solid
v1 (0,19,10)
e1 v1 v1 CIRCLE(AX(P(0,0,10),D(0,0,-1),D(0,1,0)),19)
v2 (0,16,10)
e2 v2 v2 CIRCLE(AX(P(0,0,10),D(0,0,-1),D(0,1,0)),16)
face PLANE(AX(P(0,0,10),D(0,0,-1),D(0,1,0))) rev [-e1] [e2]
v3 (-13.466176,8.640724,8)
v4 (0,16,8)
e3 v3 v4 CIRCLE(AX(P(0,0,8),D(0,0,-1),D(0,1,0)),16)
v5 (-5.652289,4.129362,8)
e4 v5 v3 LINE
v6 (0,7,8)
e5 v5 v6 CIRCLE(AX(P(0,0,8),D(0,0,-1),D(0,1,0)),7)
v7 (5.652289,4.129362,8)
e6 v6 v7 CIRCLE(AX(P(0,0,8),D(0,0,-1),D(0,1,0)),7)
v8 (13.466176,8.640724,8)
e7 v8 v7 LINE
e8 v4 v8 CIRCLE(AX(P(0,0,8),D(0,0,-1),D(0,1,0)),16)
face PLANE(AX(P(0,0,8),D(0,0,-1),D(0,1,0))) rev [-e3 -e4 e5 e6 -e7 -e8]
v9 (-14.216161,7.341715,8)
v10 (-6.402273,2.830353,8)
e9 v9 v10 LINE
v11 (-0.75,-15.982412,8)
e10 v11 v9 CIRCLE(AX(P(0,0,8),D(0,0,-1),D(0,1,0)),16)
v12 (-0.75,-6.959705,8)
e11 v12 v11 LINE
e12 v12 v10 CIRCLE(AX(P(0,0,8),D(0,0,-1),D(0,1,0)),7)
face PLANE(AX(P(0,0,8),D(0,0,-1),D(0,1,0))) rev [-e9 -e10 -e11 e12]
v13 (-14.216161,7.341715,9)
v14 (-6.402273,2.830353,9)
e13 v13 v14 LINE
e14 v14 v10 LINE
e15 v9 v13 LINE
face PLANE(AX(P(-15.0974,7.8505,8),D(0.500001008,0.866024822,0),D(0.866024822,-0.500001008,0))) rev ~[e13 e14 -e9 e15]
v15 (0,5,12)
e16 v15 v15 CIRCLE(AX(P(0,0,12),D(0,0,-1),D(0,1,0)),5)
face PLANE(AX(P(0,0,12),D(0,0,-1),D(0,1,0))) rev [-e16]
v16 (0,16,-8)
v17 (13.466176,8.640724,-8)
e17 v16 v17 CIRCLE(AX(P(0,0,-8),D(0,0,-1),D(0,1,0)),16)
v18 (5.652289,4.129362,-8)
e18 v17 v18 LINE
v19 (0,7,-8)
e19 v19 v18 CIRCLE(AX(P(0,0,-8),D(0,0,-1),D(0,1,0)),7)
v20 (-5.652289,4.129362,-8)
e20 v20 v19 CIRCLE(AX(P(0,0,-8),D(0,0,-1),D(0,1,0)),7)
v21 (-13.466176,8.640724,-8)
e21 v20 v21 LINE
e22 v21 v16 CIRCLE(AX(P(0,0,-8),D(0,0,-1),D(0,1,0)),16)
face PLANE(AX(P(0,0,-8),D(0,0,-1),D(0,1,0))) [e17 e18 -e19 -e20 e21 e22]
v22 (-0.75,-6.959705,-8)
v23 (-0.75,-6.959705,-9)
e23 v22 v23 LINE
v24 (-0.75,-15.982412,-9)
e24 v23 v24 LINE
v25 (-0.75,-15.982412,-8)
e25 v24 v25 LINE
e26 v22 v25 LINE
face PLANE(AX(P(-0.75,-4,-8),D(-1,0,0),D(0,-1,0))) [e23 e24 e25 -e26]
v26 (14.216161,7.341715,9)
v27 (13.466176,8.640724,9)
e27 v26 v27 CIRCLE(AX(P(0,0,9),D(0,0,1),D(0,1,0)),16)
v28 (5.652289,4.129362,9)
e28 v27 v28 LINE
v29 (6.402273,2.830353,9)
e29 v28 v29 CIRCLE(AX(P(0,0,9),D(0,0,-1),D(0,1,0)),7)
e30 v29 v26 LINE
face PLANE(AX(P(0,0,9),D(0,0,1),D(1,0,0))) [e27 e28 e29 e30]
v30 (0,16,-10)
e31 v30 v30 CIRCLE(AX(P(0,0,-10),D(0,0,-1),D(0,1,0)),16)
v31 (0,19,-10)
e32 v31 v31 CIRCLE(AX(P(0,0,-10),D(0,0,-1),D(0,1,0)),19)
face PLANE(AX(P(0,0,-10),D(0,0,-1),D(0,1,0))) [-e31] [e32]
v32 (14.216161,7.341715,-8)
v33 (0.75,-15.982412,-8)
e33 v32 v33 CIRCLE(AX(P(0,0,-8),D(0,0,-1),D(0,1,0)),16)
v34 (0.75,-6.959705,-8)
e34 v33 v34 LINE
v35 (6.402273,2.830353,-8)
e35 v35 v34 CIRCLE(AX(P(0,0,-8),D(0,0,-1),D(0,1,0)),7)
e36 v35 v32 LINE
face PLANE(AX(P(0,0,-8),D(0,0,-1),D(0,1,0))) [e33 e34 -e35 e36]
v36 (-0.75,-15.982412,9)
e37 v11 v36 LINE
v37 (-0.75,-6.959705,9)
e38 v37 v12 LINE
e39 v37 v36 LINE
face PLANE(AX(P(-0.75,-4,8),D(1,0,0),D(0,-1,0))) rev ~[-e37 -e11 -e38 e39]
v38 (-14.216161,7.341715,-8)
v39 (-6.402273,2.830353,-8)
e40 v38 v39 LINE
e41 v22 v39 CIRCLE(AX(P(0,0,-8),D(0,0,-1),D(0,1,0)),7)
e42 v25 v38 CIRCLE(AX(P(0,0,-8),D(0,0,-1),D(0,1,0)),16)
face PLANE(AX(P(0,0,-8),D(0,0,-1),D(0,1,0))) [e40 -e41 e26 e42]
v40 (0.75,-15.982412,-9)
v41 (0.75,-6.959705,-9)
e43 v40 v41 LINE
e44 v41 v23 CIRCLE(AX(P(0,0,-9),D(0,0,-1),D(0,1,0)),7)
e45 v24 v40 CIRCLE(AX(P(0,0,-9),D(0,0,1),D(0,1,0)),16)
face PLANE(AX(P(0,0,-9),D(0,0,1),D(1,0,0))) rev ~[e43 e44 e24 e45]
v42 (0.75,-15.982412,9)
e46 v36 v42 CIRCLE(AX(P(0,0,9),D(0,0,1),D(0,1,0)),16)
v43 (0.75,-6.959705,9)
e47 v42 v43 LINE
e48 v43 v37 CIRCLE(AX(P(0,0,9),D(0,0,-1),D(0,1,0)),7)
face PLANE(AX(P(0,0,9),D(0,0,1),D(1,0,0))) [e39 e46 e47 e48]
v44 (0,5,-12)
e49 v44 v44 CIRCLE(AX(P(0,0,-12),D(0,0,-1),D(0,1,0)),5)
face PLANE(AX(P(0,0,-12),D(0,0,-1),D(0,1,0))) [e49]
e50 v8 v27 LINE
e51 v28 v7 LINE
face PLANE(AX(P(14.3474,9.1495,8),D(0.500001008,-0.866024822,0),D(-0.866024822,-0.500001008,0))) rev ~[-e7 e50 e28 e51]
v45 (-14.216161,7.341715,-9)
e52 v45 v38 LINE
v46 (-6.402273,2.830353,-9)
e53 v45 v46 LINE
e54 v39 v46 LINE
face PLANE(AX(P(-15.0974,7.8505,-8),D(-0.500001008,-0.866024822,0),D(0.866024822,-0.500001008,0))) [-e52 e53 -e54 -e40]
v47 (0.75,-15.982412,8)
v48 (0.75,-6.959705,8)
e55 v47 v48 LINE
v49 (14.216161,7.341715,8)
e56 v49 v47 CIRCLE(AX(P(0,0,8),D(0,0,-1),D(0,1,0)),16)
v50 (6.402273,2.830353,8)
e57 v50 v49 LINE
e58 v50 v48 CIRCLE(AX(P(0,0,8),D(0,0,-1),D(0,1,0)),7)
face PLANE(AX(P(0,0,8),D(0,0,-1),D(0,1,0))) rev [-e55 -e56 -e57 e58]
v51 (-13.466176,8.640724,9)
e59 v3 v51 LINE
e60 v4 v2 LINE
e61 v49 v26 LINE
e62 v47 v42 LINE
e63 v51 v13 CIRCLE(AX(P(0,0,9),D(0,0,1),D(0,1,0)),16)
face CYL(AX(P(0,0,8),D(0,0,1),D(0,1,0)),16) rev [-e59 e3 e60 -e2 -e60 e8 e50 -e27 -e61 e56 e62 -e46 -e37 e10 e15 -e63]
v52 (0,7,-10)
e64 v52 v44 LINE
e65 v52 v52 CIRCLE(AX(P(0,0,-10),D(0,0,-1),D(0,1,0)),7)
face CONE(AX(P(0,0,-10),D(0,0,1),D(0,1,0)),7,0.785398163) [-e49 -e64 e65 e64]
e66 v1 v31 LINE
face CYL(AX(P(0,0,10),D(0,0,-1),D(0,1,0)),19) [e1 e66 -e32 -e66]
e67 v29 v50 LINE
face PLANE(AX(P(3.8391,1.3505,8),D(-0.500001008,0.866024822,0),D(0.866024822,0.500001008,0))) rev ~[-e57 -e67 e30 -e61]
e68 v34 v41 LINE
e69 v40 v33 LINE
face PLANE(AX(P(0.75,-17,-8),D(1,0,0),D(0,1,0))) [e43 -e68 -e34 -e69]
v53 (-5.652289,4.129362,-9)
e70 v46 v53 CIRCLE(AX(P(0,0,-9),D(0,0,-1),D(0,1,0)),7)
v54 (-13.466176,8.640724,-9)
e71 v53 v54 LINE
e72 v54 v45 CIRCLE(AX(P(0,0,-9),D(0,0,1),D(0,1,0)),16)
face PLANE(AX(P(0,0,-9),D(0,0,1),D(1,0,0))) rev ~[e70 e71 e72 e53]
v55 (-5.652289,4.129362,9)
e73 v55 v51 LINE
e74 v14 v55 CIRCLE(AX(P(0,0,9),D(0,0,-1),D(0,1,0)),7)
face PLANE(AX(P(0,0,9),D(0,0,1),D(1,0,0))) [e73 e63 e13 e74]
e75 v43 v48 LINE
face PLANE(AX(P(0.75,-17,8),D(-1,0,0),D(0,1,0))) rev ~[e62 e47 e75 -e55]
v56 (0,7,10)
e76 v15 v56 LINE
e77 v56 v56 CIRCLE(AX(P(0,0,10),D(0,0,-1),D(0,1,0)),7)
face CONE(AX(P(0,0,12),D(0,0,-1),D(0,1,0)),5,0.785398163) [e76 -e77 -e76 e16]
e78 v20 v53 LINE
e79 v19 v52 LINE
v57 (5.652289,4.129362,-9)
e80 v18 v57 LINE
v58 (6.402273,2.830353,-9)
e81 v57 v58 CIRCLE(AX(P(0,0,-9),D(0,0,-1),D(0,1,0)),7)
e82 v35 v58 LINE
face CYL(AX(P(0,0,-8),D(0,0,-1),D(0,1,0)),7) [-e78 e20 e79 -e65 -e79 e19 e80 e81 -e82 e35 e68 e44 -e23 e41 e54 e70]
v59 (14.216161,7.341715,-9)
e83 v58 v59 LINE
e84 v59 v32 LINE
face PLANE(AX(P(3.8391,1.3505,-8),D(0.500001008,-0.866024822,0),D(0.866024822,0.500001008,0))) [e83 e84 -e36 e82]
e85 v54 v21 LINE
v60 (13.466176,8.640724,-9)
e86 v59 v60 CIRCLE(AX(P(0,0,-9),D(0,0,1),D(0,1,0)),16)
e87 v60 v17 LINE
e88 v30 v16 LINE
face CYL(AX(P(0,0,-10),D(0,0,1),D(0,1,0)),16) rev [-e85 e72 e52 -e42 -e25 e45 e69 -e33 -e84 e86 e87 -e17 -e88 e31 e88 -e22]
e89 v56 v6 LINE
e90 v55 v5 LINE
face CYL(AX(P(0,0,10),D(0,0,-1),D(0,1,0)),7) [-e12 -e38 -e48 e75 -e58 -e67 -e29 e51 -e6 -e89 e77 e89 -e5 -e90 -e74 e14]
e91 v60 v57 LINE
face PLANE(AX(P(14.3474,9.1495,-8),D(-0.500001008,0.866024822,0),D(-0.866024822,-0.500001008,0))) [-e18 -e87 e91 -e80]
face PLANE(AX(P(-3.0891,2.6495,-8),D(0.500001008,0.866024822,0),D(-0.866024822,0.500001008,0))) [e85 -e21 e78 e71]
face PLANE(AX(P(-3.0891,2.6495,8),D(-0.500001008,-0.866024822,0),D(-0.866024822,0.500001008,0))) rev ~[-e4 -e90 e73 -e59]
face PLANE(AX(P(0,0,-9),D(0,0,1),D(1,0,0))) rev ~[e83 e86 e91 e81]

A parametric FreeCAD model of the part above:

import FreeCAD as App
import Part
import Sketcher

V = App.Vector
Q = App.Units.Quantity

doc = App.newDocument("Part")
body = doc.addObject("PartDesign::Body", "Body")

# Sketch on YZ plane
sketch1 = body.newObject("Sketcher::SketchObject", "Sketch")
sketch1.AttachmentSupport = (doc.getObject("YZ_Plane"), [""])
sketch1.MapMode = "FlatFace"
sketch1.addGeometry([
    Part.LineSegment(V(0, 12, 0), V(0, -12, 0)),  # 0
    Part.LineSegment(V(0, -12, 0), V(5, -12, 0)),  # 1
    Part.LineSegment(V(5, -12, 0), V(7, -10, 0)),  # 2
    Part.LineSegment(V(7, -10, 0), V(7, -8, 0)),  # 3
    Part.LineSegment(V(7, -8, 0), V(16, -8, 0)),  # 4
    Part.LineSegment(V(16, -8, 0), V(16, -10, 0)),  # 5
    Part.LineSegment(V(16, -10, 0), V(19, -10, 0)),  # 6
    Part.LineSegment(V(19, -10, 0), V(19, 10, 0)),  # 7
    Part.LineSegment(V(19, 10, 0), V(16, 10, 0)),  # 8
    Part.LineSegment(V(16, 10, 0), V(16, 8, 0)),  # 9
    Part.LineSegment(V(16, 8, 0), V(7, 8, 0)),  # 10
    Part.LineSegment(V(7, 8, 0), V(7, 10, 0)),  # 11
    Part.LineSegment(V(7, 10, 0), V(5, 12, 0)),  # 12
    Part.LineSegment(V(5, 12, 0), V(0, 12, 0)),  # 13
], False)
sketch1.addConstraint([
    Sketcher.Constraint("Coincident", 0, 2, 1, 1),
    Sketcher.Constraint("Coincident", 1, 2, 2, 1),
    Sketcher.Constraint("Coincident", 2, 2, 3, 1),
    Sketcher.Constraint("Coincident", 3, 2, 4, 1),
    Sketcher.Constraint("Coincident", 4, 2, 5, 1),
    Sketcher.Constraint("Coincident", 5, 2, 6, 1),
    Sketcher.Constraint("Coincident", 6, 2, 7, 1),
    Sketcher.Constraint("Coincident", 7, 2, 8, 1),
    Sketcher.Constraint("Coincident", 8, 2, 9, 1),
    Sketcher.Constraint("Coincident", 9, 2, 10, 1),
    Sketcher.Constraint("Coincident", 10, 2, 11, 1),
    Sketcher.Constraint("Coincident", 11, 2, 12, 1),
    Sketcher.Constraint("Coincident", 12, 2, 13, 1),
    Sketcher.Constraint("Coincident", 13, 2, 0, 1),
    Sketcher.Constraint("Vertical", 0),
    Sketcher.Constraint("Horizontal", 1),
    Sketcher.Constraint("Vertical", 3),
    Sketcher.Constraint("Horizontal", 4),
    Sketcher.Constraint("Vertical", 5),
    Sketcher.Constraint("Horizontal", 6),
    Sketcher.Constraint("Vertical", 7),
    Sketcher.Constraint("Horizontal", 8),
    Sketcher.Constraint("Vertical", 9),
    Sketcher.Constraint("Horizontal", 10),
    Sketcher.Constraint("Vertical", 11),
    Sketcher.Constraint("Horizontal", 13),
    Sketcher.Constraint("Symmetric", 0, 2, 13, 2, -1, 1),
    Sketcher.Constraint("Symmetric", 5, 2, 8, 2, -1),
    Sketcher.Constraint("Symmetric", 3, 2, 10, 2, -1),
    Sketcher.Constraint("Perpendicular", 2, 12),
    Sketcher.Constraint("Horizontal", 2, 2, 5, 2),
    Sketcher.Constraint("Horizontal", 8, 2, 11, 2),
    Sketcher.Constraint("Vertical", 1, 2, 12, 2),
    Sketcher.Constraint("DistanceX", 1, 1, 1, 2, Q("5 mm")),
    Sketcher.Constraint("DistanceX", 4, 1, 4, 2, Q("9 mm")),
    Sketcher.Constraint("DistanceX", 6, 1, 6, 2, Q("3 mm")),
    Sketcher.Constraint("DistanceY", 0, 2, 0, 1, Q("24 mm")),
    Sketcher.Constraint("DistanceY", 3, 1, 3, 2, Q("2 mm")),
    Sketcher.Constraint("DistanceY", 7, 1, 7, 2, Q("20 mm")),
])
revolution = body.newObject("PartDesign::Revolution", "Revolution")
revolution.Profile = sketch1
revolution.ReferenceAxis = (sketch1, ["V_Axis"])
revolution.Angle = 360

# Sketch on XY plane
sketch2 = body.newObject("Sketcher::SketchObject", "Sketch001")
sketch2.AttachmentSupport = (doc.getObject("XY_Plane"), [""])
sketch2.MapMode = "FlatFace"
sketch2.AttachmentOffset = App.Placement(V(0, 0, 8), App.Rotation())
sketch2.addGeometry([
    Part.LineSegment(V(-0.75, -4, 0), V(-0.75, -17, 0)),
    Part.LineSegment(V(-0.75, -17, 0), V(0.75, -17, 0)),
    Part.LineSegment(V(0.75, -17, 0), V(0.75, -4, 0)),
    Part.LineSegment(V(0.75, -4, 0), V(-0.75, -4, 0)),
], False)
sketch2.addConstraint([
    Sketcher.Constraint("Coincident", 0, 2, 1, 1),
    Sketcher.Constraint("Coincident", 1, 2, 2, 1),
    Sketcher.Constraint("Coincident", 2, 2, 3, 1),
    Sketcher.Constraint("Coincident", 3, 2, 0, 1),
    Sketcher.Constraint("Vertical", 0),
    Sketcher.Constraint("Horizontal", 1),
    Sketcher.Constraint("Vertical", 2),
    Sketcher.Constraint("Horizontal", 3),
    Sketcher.Constraint("DistanceY", 0, 2, 0, 1, Q("13 mm")),
    Sketcher.Constraint("DistanceX", 1, 1, 1, 2, Q("1.5 mm")),
    Sketcher.Constraint("DistanceY", 0, 2, -1, 1, Q("17 mm")),
    Sketcher.Constraint("DistanceX", 0, 2, -1, 1, Q("0.75 mm")),
])
pad1 = body.newObject("PartDesign::Pad", "Pad")
pad1.Profile = sketch2
pad1.Length = 1

# Sketch on XY plane
sketch3 = body.newObject("Sketcher::SketchObject", "Sketch002")
sketch3.AttachmentSupport = (doc.getObject("XY_Plane"), [""])
sketch3.MapMode = "FlatFace"
sketch3.AttachmentOffset = App.Placement(V(0, 0, 8), App.Rotation())
sketch3.addGeometry([
    Part.LineSegment(V(14.3474, 9.1495, 0), V(3.0891, 2.6495, 0)),
    Part.LineSegment(V(3.0891, 2.6495, 0), V(3.8391, 1.3505, 0)),
    Part.LineSegment(V(3.8391, 1.3505, 0), V(15.0974, 7.8505, 0)),
    Part.LineSegment(V(15.0974, 7.8505, 0), V(14.3474, 9.1495, 0)),
], False)
sketch3.addConstraint([
    Sketcher.Constraint("Coincident", 0, 2, 1, 1),
    Sketcher.Constraint("Coincident", 1, 2, 2, 1),
    Sketcher.Constraint("Coincident", 2, 2, 3, 1),
    Sketcher.Constraint("Coincident", 3, 2, 0, 1),
    Sketcher.Constraint("Perpendicular", 0, 1),
    Sketcher.Constraint("Perpendicular", 1, 2),
    Sketcher.Constraint("Perpendicular", 2, 3),
    Sketcher.Constraint("Angle", 0, Q("-150 deg")),
    Sketcher.Constraint("Distance", 0, Q("13 mm")),
    Sketcher.Constraint("Distance", 1, Q("1.5 mm")),
    Sketcher.Constraint("DistanceX", -1, 1, 0, 2, Q("3.089 mm")),
    Sketcher.Constraint("DistanceY", -1, 1, 0, 2, Q("2.6495 mm")),
])
pad2 = body.newObject("PartDesign::Pad", "Pad001")
pad2.Profile = sketch3
pad2.Length = 1

# Sketch on XY plane
sketch4 = body.newObject("Sketcher::SketchObject", "Sketch003")
sketch4.AttachmentSupport = (doc.getObject("XY_Plane"), [""])
sketch4.MapMode = "FlatFace"
sketch4.AttachmentOffset = App.Placement(V(0, 0, 8), App.Rotation())
sketch4.addGeometry([
    Part.LineSegment(V(-14.3474, 9.1495, 0), V(-15.0974, 7.8505, 0)),
    Part.LineSegment(V(-15.0974, 7.8505, 0), V(-3.8391, 1.3505, 0)),
    Part.LineSegment(V(-3.8391, 1.3505, 0), V(-3.0891, 2.6495, 0)),
    Part.LineSegment(V(-3.0891, 2.6495, 0), V(-14.3474, 9.1495, 0)),
], False)
sketch4.addConstraint([
    Sketcher.Constraint("Coincident", 0, 2, 1, 1),
    Sketcher.Constraint("Coincident", 1, 2, 2, 1),
    Sketcher.Constraint("Coincident", 2, 2, 3, 1),
    Sketcher.Constraint("Coincident", 3, 2, 0, 1),
    Sketcher.Constraint("Perpendicular", 0, 1),
    Sketcher.Constraint("Perpendicular", 1, 2),
    Sketcher.Constraint("Perpendicular", 2, 3),
    Sketcher.Constraint("Angle", 0, Q("-120.0007 deg")),
    Sketcher.Constraint("Distance", 1, Q("13 mm")),
    Sketcher.Constraint("Distance", 0, Q("1.5 mm")),
    Sketcher.Constraint("DistanceX", 1, 2, -1, 1, Q("3.839 mm")),
    Sketcher.Constraint("DistanceY", -1, 1, 0, 2, Q("7.8505 mm")),
])
pad3 = body.newObject("PartDesign::Pad", "Pad002")
pad3.Profile = sketch4
pad3.Length = 1

# Sketch on XY plane
sketch5 = body.newObject("Sketcher::SketchObject", "Sketch004")
sketch5.AttachmentSupport = (doc.getObject("XY_Plane"), [""])
sketch5.MapMode = "FlatFace"
sketch5.AttachmentOffset = App.Placement(V(0, 0, -8), App.Rotation())
sketch5.addGeometry([
    Part.LineSegment(V(-0.75, -4, 0), V(-0.75, -17, 0)),
    Part.LineSegment(V(-0.75, -17, 0), V(0.75, -17, 0)),
    Part.LineSegment(V(0.75, -17, 0), V(0.75, -4, 0)),
    Part.LineSegment(V(0.75, -4, 0), V(-0.75, -4, 0)),
], False)
sketch5.addConstraint([
    Sketcher.Constraint("Coincident", 0, 2, 1, 1),
    Sketcher.Constraint("Coincident", 1, 2, 2, 1),
    Sketcher.Constraint("Coincident", 2, 2, 3, 1),
    Sketcher.Constraint("Coincident", 3, 2, 0, 1),
    Sketcher.Constraint("Vertical", 0),
    Sketcher.Constraint("Horizontal", 1),
    Sketcher.Constraint("Vertical", 2),
    Sketcher.Constraint("Horizontal", 3),
    Sketcher.Constraint("DistanceY", 0, 2, 0, 1, Q("13 mm")),
    Sketcher.Constraint("DistanceX", 1, 1, 1, 2, Q("1.5 mm")),
    Sketcher.Constraint("DistanceY", 0, 2, -1, 1, Q("17 mm")),
    Sketcher.Constraint("DistanceX", 0, 2, -1, 1, Q("0.75 mm")),
])
pad4 = body.newObject("PartDesign::Pad", "Pad003")
pad4.Profile = sketch5
pad4.Length = 1
pad4.Reversed = True

# Sketch on XY plane
sketch6 = body.newObject("Sketcher::SketchObject", "Sketch005")
sketch6.AttachmentSupport = (doc.getObject("XY_Plane"), [""])
sketch6.MapMode = "FlatFace"
sketch6.AttachmentOffset = App.Placement(V(0, 0, -8), App.Rotation())
sketch6.addGeometry([
    Part.LineSegment(V(14.3474, 9.1495, 0), V(3.0891, 2.6495, 0)),
    Part.LineSegment(V(3.0891, 2.6495, 0), V(3.8391, 1.3505, 0)),
    Part.LineSegment(V(3.8391, 1.3505, 0), V(15.0974, 7.8505, 0)),
    Part.LineSegment(V(15.0974, 7.8505, 0), V(14.3474, 9.1495, 0)),
], False)
sketch6.addConstraint([
    Sketcher.Constraint("Coincident", 0, 2, 1, 1),
    Sketcher.Constraint("Coincident", 1, 2, 2, 1),
    Sketcher.Constraint("Coincident", 2, 2, 3, 1),
    Sketcher.Constraint("Coincident", 3, 2, 0, 1),
    Sketcher.Constraint("Perpendicular", 0, 1),
    Sketcher.Constraint("Perpendicular", 1, 2),
    Sketcher.Constraint("Perpendicular", 2, 3),
    Sketcher.Constraint("Angle", 0, Q("-150 deg")),
    Sketcher.Constraint("Distance", 0, Q("13 mm")),
    Sketcher.Constraint("Distance", 1, Q("1.5 mm")),
    Sketcher.Constraint("DistanceX", -1, 1, 0, 2, Q("3.089 mm")),
    Sketcher.Constraint("DistanceY", -1, 1, 0, 2, Q("2.6495 mm")),
])
pad5 = body.newObject("PartDesign::Pad", "Pad004")
pad5.Profile = sketch6
pad5.Length = 1
pad5.Reversed = True

# Sketch on XY plane
sketch7 = body.newObject("Sketcher::SketchObject", "Sketch006")
sketch7.AttachmentSupport = (doc.getObject("XY_Plane"), [""])
sketch7.MapMode = "FlatFace"
sketch7.AttachmentOffset = App.Placement(V(0, 0, -8), App.Rotation())
sketch7.addGeometry([
    Part.LineSegment(V(-14.3474, 9.1495, 0), V(-15.0974, 7.8505, 0)),
    Part.LineSegment(V(-15.0974, 7.8505, 0), V(-3.8391, 1.3505, 0)),
    Part.LineSegment(V(-3.8391, 1.3505, 0), V(-3.0891, 2.6495, 0)),
    Part.LineSegment(V(-3.0891, 2.6495, 0), V(-14.3474, 9.1495, 0)),
], False)
sketch7.addConstraint([
    Sketcher.Constraint("Coincident", 0, 2, 1, 1),
    Sketcher.Constraint("Coincident", 1, 2, 2, 1),
    Sketcher.Constraint("Coincident", 2, 2, 3, 1),
    Sketcher.Constraint("Coincident", 3, 2, 0, 1),
    Sketcher.Constraint("Perpendicular", 0, 1),
    Sketcher.Constraint("Perpendicular", 1, 2),
    Sketcher.Constraint("Perpendicular", 2, 3),
    Sketcher.Constraint("Angle", 0, Q("-120.0007 deg")),
    Sketcher.Constraint("Distance", 1, Q("13 mm")),
    Sketcher.Constraint("Distance", 0, Q("1.5 mm")),
    Sketcher.Constraint("DistanceX", 1, 2, -1, 1, Q("3.839 mm")),
    Sketcher.Constraint("DistanceY", -1, 1, 0, 2, Q("7.8505 mm")),
])
pad6 = body.newObject("PartDesign::Pad", "Pad005")
pad6.Profile = sketch7
pad6.Length = 1
pad6.Reversed = True

doc.recompute()
